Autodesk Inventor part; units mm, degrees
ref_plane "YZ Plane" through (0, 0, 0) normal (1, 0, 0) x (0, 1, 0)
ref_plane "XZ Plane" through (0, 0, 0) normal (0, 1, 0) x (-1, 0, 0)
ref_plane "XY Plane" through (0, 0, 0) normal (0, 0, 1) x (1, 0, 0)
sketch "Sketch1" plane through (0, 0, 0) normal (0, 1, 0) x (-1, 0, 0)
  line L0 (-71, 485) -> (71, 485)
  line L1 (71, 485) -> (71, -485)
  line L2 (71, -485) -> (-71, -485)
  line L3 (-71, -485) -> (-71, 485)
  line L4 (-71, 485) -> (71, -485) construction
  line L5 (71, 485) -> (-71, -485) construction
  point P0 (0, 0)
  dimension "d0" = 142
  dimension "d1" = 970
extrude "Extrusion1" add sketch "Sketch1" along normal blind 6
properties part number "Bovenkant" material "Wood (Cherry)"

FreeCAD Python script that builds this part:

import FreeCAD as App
import Part
import Sketcher

V = App.Vector
Q = App.Units.Quantity

doc = App.newDocument("Part")
body = doc.addObject("PartDesign::Body", "Body")

# Sketch on XZ plane
sketch1 = body.newObject("Sketcher::SketchObject", "Sketch")
sketch1.AttachmentSupport = (doc.getObject("XZ_Plane"), [""])
sketch1.MapMode = "FlatFace"
sketch1.addGeometry(Part.LineSegment(V(-71, 485, 0), V(71, 485, 0)), False)
sketch1.addGeometry(Part.LineSegment(V(71, 485, 0), V(71, -485, 0)), False)
sketch1.addGeometry(Part.LineSegment(V(71, -485, 0), V(-71, -485, 0)), False)
sketch1.addGeometry(Part.LineSegment(V(-71, -485, 0), V(-71, 485, 0)), False)
sketch1.addConstraint(Sketcher.Constraint("Coincident", 0, 2, 1, 1))
sketch1.addConstraint(Sketcher.Constraint("Coincident", 1, 2, 2, 1))
sketch1.addConstraint(Sketcher.Constraint("Coincident", 2, 2, 3, 1))
sketch1.addConstraint(Sketcher.Constraint("Coincident", 3, 2, 0, 1))
sketch1.addConstraint(Sketcher.Constraint("Horizontal", 0))
sketch1.addConstraint(Sketcher.Constraint("Vertical", 1))
sketch1.addConstraint(Sketcher.Constraint("Horizontal", 2))
sketch1.addConstraint(Sketcher.Constraint("Vertical", 3))
sketch1.addConstraint(Sketcher.Constraint("Symmetric", 0, 2, 2, 2, -1, 1))
sketch1.addConstraint(Sketcher.Constraint("DistanceX", 0, 1, 0, 2, Q("142 mm")))
sketch1.addConstraint(Sketcher.Constraint("DistanceY", 1, 2, 1, 1, Q("970 mm")))
pad1 = body.newObject("PartDesign::Pad", "Pad")
pad1.Profile = sketch1
pad1.Length = 6
pad1.Reversed = True

doc.recompute()
